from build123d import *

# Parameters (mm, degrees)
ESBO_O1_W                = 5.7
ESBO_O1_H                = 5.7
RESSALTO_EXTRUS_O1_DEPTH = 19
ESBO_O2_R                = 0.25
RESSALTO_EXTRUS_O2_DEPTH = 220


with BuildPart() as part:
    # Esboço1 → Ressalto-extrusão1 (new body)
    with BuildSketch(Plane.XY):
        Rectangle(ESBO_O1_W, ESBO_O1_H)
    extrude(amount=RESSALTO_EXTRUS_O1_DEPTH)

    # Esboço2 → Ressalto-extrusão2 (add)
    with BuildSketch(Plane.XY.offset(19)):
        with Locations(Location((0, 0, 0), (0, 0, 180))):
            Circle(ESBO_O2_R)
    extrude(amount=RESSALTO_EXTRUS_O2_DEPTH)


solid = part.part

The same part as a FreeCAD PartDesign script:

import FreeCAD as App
import Part
import Sketcher

V = App.Vector
Q = App.Units.Quantity

doc = App.newDocument("Part")
params = doc.addObject("Spreadsheet::Sheet", "Params")
for row, (alias, value) in enumerate([
    ("sketch1_width", "5.7 mm"),
    ("pad1_length", "19 mm"),
    ("sketch2_diameter", "0.5 mm"),
    ("pad2_length", "220 mm"),
], start=1):
    params.set(f"A{row}", alias)
    params.set(f"B{row}", "=" + value)
    params.setAlias(f"B{row}", alias)

body = doc.addObject("PartDesign::Body", "Body")

# Sketch on XY plane
sketch1 = doc.addObject("Sketcher::SketchObject", "Sketch")
body.addObject(sketch1)
sketch1.AttachmentSupport = (doc.XY_Plane, [""])
sketch1.MapMode = "FlatFace"
sketch1.addGeometry(Part.LineSegment(V(-3, 3, 0), V(-3, -3, 0)), False)
sketch1.addGeometry(Part.LineSegment(V(-3, -3, 0), V(3, -3, 0)), False)
sketch1.addGeometry(Part.LineSegment(V(3, -3, 0), V(3, 3, 0)), False)
sketch1.addGeometry(Part.LineSegment(V(3, 3, 0), V(-3, 3, 0)), False)
sketch1.addConstraint(Sketcher.Constraint("Coincident", 0, 2, 1, 1))
sketch1.addConstraint(Sketcher.Constraint("Coincident", 1, 2, 2, 1))
sketch1.addConstraint(Sketcher.Constraint("Coincident", 2, 2, 3, 1))
sketch1.addConstraint(Sketcher.Constraint("Coincident", 3, 2, 0, 1))
sketch1.addConstraint(Sketcher.Constraint("Vertical", 0))
sketch1.addConstraint(Sketcher.Constraint("Horizontal", 1))
sketch1.addConstraint(Sketcher.Constraint("Vertical", 2))
sketch1.addConstraint(Sketcher.Constraint("Horizontal", 3))
sketch1.addConstraint(Sketcher.Constraint("Symmetric", 0, 2, 2, 2, -1, 1))
sketch1.addConstraint(Sketcher.Constraint("Equal", 3, 0))
sketch1.addConstraint(Sketcher.Constraint("DistanceX", 1, 1, 1, 2, Q("5.7 mm")))
sketch1.setExpression("Constraints[10]", "Params.sketch1_width")
pad1 = doc.addObject("PartDesign::Pad", "Pad")
body.addObject(pad1)
pad1.Profile = sketch1
pad1.setExpression("Length", "Params.pad1_length")

# Sketch on XY plane
sketch2 = doc.addObject("Sketcher::SketchObject", "Sketch001")
body.addObject(sketch2)
sketch2.AttachmentSupport = (doc.XY_Plane, [""])
sketch2.MapMode = "FlatFace"
sketch2.AttachmentOffset = App.Placement(V(0, 0, 19), App.Rotation())
sketch2.addGeometry(Part.Circle(V(0, 0, 0), V(0, 0, 1), 0.25), False)
sketch2.addConstraint(Sketcher.Constraint("Coincident", 0, 3, -1, 1))
sketch2.addConstraint(Sketcher.Constraint("Diameter", 0, Q("0.5 mm")))
sketch2.setExpression("Constraints[1]", "Params.sketch2_diameter")
pad2 = doc.addObject("PartDesign::Pad", "Pad001")
body.addObject(pad2)
pad2.Profile = sketch2
pad2.setExpression("Length", "Params.pad2_length")

doc.recompute()
